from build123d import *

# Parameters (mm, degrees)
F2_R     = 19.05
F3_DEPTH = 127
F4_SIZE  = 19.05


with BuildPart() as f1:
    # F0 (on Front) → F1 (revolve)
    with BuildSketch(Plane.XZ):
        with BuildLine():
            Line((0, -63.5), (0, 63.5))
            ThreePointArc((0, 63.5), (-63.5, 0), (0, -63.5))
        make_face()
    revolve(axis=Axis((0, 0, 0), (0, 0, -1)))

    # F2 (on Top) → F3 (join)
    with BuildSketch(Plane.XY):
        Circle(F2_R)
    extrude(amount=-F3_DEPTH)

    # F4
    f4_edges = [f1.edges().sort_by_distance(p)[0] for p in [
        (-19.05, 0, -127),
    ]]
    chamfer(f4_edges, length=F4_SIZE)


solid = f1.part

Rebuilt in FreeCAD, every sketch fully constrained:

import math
import FreeCAD as App
import Part
import Sketcher
Q = App.Units.Quantity


def edges_at(feature, points):
    """Names of the edges that pass closest to the given points."""
    edges = feature.Shape.Edges
    near = lambda p: min(range(len(edges)), key=lambda i: edges[i].distToShape(Part.Vertex(*p))[0])
    return sorted({f"Edge{near(p) + 1}" for p in points})

doc = App.newDocument("Part")
body = doc.addObject("PartDesign::Body", "Body")

# Sketch on XZ plane
sketch1 = body.newObject("Sketcher::SketchObject", "Sketch")
sketch1.AttachmentSupport = (doc.getObject("XZ_Plane"), [""])
sketch1.MapMode = "FlatFace"
sketch1.addGeometry([
    Part.LineSegment(App.Vector(0, -63.5, 0), App.Vector(0, 63.5, 0)),
    Part.ArcOfCircle(Part.Circle(App.Vector(0, 0, 0), App.Vector(0, 0, 1), 63.5), math.radians(90), math.radians(270)),
], False)
sketch1.addConstraint([
    Sketcher.Constraint("Coincident", 0, 1, 1, 2),
    Sketcher.Constraint("Coincident", 1, 1, 0, 2),
    Sketcher.Constraint("Vertical", 0),
    Sketcher.Constraint("Coincident", 1, 3, -1, 1),
    Sketcher.Constraint("PointOnObject", 0, 1, -2),
    Sketcher.Constraint("Radius", 1, Q("2.5 in")),
])
revolution = body.newObject("PartDesign::Revolution", "Revolution")
revolution.Profile = sketch1
revolution.ReferenceAxis = (sketch1, ["V_Axis"])
revolution.Angle = 360

# Sketch on XY plane
sketch2 = body.newObject("Sketcher::SketchObject", "Sketch001")
sketch2.AttachmentSupport = (doc.getObject("XY_Plane"), [""])
sketch2.MapMode = "FlatFace"
sketch2.addGeometry(Part.Circle(App.Vector(0, 0, 0), App.Vector(0, 0, 1), 19.05), False)
sketch2.addConstraint([
    Sketcher.Constraint("Coincident", 0, 3, -1, 1),
    Sketcher.Constraint("Diameter", 0, Q("1.5 in")),
])
pad1 = body.newObject("PartDesign::Pad", "Pad")
pad1.Profile = sketch2
pad1.Length = Q("5 in")
pad1.Reversed = True
doc.recompute()

chamfer = body.newObject("PartDesign::Chamfer", "Chamfer")
chamfer.Base = (pad1, edges_at(pad1, [(-19.05, 0, -127)]))
chamfer.Size = Q("0.75 in")

doc.recompute()
